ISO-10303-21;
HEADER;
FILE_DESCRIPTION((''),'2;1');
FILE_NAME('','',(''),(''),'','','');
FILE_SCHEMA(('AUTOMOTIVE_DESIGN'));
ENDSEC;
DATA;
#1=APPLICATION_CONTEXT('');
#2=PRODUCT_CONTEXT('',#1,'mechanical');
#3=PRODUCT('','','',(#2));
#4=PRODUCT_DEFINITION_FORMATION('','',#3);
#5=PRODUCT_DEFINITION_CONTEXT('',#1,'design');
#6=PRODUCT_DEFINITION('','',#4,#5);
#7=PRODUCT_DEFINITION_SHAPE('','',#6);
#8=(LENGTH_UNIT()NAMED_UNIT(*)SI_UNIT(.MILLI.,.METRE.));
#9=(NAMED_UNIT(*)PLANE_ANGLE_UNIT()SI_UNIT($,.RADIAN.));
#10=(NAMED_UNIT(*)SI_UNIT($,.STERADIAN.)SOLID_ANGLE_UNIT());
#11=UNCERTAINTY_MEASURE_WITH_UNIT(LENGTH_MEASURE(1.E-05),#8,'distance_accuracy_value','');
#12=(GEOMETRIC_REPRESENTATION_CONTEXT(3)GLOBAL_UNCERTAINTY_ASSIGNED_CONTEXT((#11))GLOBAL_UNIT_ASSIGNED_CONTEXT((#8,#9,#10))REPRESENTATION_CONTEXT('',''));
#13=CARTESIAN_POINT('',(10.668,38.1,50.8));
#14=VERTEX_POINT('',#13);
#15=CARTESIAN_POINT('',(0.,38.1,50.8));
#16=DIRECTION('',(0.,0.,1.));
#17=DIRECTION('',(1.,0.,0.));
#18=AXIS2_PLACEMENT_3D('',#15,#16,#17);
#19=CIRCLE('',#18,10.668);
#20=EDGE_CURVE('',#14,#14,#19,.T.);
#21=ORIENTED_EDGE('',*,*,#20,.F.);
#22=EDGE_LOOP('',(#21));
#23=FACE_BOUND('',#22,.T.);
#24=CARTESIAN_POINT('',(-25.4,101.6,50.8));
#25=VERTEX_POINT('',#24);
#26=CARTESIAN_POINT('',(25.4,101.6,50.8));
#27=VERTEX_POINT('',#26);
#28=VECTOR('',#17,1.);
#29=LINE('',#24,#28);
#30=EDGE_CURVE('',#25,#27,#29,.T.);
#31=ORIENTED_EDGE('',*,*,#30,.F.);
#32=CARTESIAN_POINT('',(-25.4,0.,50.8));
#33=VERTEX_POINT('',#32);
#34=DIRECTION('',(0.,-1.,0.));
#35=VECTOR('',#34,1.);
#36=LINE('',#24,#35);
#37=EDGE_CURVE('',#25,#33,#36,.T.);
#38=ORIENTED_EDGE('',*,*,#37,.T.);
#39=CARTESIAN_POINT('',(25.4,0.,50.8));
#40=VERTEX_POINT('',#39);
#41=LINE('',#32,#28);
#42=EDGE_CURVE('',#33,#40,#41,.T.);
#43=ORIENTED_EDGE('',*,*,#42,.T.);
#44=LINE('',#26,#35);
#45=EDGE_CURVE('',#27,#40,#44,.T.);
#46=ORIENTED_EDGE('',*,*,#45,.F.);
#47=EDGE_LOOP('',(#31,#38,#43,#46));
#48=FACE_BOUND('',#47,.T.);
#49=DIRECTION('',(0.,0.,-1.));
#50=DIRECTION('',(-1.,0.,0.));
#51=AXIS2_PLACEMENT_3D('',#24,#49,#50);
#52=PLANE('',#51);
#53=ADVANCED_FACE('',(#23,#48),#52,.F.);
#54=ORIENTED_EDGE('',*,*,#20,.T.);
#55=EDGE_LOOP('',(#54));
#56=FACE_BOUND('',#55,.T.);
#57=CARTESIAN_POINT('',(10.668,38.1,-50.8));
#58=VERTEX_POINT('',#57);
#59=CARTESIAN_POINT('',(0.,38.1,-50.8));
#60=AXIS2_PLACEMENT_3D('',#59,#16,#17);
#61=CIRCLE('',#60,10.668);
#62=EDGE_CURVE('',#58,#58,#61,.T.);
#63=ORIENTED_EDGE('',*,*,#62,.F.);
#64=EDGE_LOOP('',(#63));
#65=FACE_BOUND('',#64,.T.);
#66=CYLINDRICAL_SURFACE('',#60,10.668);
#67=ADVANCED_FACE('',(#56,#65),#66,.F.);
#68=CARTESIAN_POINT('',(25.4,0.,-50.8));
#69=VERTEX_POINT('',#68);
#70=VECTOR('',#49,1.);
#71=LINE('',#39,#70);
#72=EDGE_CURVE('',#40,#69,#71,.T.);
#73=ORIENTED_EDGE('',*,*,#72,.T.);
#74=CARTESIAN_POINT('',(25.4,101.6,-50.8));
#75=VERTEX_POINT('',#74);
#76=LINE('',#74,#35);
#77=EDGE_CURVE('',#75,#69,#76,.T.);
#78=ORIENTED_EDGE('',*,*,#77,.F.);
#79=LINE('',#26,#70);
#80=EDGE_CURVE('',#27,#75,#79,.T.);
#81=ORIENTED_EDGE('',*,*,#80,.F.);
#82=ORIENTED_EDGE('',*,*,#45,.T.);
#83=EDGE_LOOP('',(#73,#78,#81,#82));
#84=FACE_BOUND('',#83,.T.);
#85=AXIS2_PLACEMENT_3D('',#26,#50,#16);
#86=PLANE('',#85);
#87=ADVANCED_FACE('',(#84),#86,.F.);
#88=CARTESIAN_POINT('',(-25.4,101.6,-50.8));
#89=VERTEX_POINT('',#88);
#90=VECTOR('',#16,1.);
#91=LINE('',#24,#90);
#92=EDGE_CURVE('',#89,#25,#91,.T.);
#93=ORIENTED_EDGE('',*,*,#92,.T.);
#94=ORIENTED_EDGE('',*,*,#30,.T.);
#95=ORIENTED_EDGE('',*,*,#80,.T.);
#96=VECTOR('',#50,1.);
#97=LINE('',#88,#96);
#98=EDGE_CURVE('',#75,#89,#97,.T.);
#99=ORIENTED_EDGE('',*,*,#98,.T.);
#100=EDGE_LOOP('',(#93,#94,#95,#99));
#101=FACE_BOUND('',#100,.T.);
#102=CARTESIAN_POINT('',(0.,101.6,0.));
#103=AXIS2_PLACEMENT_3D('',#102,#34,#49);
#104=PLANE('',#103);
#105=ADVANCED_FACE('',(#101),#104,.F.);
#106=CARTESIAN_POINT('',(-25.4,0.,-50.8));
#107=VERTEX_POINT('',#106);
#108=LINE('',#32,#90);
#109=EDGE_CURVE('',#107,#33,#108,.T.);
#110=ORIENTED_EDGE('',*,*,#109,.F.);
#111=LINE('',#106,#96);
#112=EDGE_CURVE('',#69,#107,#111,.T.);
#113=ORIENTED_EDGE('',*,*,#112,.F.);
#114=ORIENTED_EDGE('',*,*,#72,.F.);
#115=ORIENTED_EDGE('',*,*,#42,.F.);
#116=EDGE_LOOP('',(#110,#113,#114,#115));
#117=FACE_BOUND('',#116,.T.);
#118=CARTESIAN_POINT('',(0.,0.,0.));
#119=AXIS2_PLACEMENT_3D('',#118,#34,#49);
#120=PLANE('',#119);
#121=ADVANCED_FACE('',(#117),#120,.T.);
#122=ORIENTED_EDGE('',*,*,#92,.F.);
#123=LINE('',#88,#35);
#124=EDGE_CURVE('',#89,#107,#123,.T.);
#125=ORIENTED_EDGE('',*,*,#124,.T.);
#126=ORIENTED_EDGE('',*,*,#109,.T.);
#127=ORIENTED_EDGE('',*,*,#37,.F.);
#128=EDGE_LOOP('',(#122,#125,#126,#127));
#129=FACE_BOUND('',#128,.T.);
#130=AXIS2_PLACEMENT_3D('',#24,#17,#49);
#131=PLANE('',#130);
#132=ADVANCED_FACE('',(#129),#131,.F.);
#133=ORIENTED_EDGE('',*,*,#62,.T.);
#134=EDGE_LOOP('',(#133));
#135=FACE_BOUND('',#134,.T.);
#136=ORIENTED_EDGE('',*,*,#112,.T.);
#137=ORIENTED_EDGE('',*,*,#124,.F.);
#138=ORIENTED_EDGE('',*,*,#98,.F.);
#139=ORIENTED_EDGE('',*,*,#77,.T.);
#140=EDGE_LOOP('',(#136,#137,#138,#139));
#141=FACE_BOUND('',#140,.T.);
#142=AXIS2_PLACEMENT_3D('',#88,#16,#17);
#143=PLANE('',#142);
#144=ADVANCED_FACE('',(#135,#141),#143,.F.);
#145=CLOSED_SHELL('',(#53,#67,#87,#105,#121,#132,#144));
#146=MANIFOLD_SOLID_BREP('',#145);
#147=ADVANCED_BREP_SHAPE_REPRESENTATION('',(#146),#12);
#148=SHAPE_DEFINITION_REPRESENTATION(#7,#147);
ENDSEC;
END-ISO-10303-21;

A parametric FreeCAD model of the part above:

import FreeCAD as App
import Part
import Sketcher

V = App.Vector
Q = App.Units.Quantity

doc = App.newDocument("Part")
body = doc.addObject("PartDesign::Body", "Body")

# Sketch on XZ plane
sketch1 = doc.addObject("Sketcher::SketchObject", "Sketch")
body.addObject(sketch1)
sketch1.AttachmentSupport = (doc.XZ_Plane, [""])
sketch1.MapMode = "FlatFace"
sketch1.addGeometry([
    Part.LineSegment(V(-25, -51, 0), V(-25, 51, 0)),
    Part.LineSegment(V(-25, 51, 0), V(25, 51, 0)),
    Part.LineSegment(V(25, 51, 0), V(25, -51, 0)),
    Part.LineSegment(V(25, -51, 0), V(-25, -51, 0)),
], False)
sketch1.addConstraint([
    Sketcher.Constraint("Coincident", 0, 2, 1, 1),
    Sketcher.Constraint("Coincident", 1, 2, 2, 1),
    Sketcher.Constraint("Coincident", 2, 2, 3, 1),
    Sketcher.Constraint("Coincident", 3, 2, 0, 1),
    Sketcher.Constraint("Vertical", 0),
    Sketcher.Constraint("Horizontal", 1),
    Sketcher.Constraint("Vertical", 2),
    Sketcher.Constraint("Horizontal", 3),
    Sketcher.Constraint("Symmetric", 0, 2, 2, 2, -1, 1),
    Sketcher.Constraint("DistanceX", 1, 1, 1, 2, Q("2 in")),
    Sketcher.Constraint("DistanceY", 0, 1, 0, 2, Q("4 in")),
])
pad1 = doc.addObject("PartDesign::Pad", "Pad")
body.addObject(pad1)
pad1.Profile = sketch1
pad1.Length = Q("4 in")
pad1.Reversed = True

# Sketch on XY plane
sketch2 = doc.addObject("Sketcher::SketchObject", "Sketch001")
body.addObject(sketch2)
sketch2.AttachmentSupport = (doc.XY_Plane, [""])
sketch2.MapMode = "FlatFace"
sketch2.addGeometry(Part.Circle(V(0, 38, 0), V(0, 0, 1), 11), False)
sketch2.addConstraint([
    Sketcher.Constraint("PointOnObject", 0, 3, -2),
    Sketcher.Constraint("Diameter", 0, Q("0.84 in")),
    Sketcher.Constraint("DistanceY", -1, 1, 0, 3, Q("1.5 in")),
])
pocket1 = doc.addObject("PartDesign::Pocket", "Pocket")
body.addObject(pocket1)
pocket1.Profile = sketch2
pocket1.Type = "ThroughAll"
pocket1.Midplane = True

doc.recompute()
